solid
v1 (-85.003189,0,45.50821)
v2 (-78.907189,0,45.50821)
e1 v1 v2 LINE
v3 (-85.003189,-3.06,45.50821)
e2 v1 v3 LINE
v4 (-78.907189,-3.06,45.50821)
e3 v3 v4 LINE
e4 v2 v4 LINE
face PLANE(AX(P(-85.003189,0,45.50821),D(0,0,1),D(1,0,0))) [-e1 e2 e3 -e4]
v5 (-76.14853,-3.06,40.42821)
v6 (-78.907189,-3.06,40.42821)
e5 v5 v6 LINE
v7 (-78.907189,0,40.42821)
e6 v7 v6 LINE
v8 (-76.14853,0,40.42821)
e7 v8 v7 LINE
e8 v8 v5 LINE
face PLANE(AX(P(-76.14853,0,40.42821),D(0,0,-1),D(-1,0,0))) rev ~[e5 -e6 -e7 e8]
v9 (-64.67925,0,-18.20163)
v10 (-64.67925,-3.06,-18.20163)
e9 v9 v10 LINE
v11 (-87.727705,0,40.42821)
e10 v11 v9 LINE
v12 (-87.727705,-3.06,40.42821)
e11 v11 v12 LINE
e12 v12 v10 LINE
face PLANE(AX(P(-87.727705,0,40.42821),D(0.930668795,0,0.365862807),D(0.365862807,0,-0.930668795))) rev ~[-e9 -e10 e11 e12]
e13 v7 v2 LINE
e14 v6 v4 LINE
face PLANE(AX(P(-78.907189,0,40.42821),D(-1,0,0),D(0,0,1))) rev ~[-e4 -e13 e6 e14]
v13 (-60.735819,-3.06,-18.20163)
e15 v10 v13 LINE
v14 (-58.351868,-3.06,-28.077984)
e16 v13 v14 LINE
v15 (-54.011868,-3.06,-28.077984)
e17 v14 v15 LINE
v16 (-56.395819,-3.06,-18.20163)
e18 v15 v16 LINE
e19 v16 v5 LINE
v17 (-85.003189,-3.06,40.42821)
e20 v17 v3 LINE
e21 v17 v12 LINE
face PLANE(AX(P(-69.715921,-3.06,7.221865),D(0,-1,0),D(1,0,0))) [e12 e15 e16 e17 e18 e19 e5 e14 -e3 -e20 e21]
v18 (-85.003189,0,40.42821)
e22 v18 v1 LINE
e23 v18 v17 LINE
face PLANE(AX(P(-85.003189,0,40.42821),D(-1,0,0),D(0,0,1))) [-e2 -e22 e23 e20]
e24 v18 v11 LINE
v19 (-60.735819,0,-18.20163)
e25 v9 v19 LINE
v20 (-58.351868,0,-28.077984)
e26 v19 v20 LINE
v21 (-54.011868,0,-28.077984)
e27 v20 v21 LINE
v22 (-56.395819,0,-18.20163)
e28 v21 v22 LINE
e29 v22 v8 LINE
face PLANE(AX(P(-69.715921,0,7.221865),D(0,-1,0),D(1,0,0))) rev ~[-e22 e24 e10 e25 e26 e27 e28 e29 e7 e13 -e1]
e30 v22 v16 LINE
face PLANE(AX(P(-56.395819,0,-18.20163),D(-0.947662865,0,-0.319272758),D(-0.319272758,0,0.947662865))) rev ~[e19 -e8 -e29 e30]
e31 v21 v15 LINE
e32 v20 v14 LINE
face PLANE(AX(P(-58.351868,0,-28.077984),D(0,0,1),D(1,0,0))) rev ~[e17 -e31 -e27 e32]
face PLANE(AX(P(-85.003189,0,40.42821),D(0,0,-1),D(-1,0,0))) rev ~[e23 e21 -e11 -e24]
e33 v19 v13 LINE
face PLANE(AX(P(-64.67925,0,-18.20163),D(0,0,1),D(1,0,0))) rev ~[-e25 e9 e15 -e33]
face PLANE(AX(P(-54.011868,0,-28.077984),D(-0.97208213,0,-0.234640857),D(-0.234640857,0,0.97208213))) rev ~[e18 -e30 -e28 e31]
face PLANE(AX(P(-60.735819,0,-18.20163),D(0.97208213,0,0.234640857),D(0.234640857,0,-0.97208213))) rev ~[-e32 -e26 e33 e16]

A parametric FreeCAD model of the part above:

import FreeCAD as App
import Part
import Sketcher
from FreeCAD import Vector
Q = App.Units.Quantity


def add_polygon(sketch, points):
    """Adds a closed chain of lines whose ends are joined by coincident constraints."""
    first, n = sketch.GeometryCount, len(points)
    for a, b in zip(points, points[1:] + points[:1]):
        sketch.addGeometry(Part.LineSegment(App.Vector(*a, 0), App.Vector(*b, 0)), False)
    for i in range(n):
        sketch.addConstraint(Sketcher.Constraint("Coincident", first + i, 2, first + (i + 1) % n, 1))

doc = App.newDocument("Part")
body = doc.addObject("PartDesign::Body", "Body")

# Sketch on XZ plane
sketch1 = body.newObject("Sketcher::SketchObject", "Sketch")
sketch1.AttachmentSupport = (doc.getObject("XZ_Plane"), [""])
sketch1.MapMode = "FlatFace"
add_polygon(sketch1, [(-64.7, -18.2), (-60.7, -18.2), (-58.4, -28.1), (-54, -28.1), (-56.4, -18.2), (-76.1, 40.4), (-78.9, 40.4), (-78.9, 45.5), (-85, 45.5), (-85, 40.4), (-87.7, 40.4)])  # lines 0-10
sketch1.addConstraint([
    Sketcher.Constraint("Horizontal", 0),
    Sketcher.Constraint("Horizontal", 2),
    Sketcher.Constraint("Horizontal", 5),
    Sketcher.Constraint("Vertical", 6),
    Sketcher.Constraint("Horizontal", 7),
    Sketcher.Constraint("Vertical", 8),
    Sketcher.Constraint("Horizontal", 9),
    Sketcher.Constraint("Parallel", 1, 3),
    Sketcher.Constraint("Horizontal", 0, 2, 3, 2),
    Sketcher.Constraint("Horizontal", 5, 2, 8, 2),
    Sketcher.Constraint("DistanceY", 6, 1, 6, 2, Q("0.2 in")),
    Sketcher.Constraint("Distance", 1, Q("0.4 in")),
    Sketcher.Constraint("DistanceX", 7, 2, 7, 1, Q("0.24 in")),
    Sketcher.Constraint("DistanceX", 2, 1, 2, 2, 4.34),
    Sketcher.Constraint("DistanceX", 0, 1, 0, 2, 3.943431),
    Sketcher.Constraint("DistanceX", 5, 2, 5, 1, 2.758659),
    Sketcher.Constraint("DistanceX", 9, 2, 9, 1, 2.724516),
    Sketcher.Constraint("DistanceX", 0, 2, -1, 1, 60.735819),
    Sketcher.Constraint("DistanceY", 0, 2, -1, 1, 18.20163),
    Sketcher.Constraint("DistanceX", 1, 2, -1, 1, 58.351868),
    Sketcher.Constraint("DistanceX", 4, 2, -1, 1, 76.14853),
    Sketcher.Constraint("DistanceY", -1, 1, 4, 2, 40.42821),
])
pad1 = body.newObject("PartDesign::Pad", "Pad")
pad1.Profile = sketch1
pad1.Length = 3.06

doc.recompute()
